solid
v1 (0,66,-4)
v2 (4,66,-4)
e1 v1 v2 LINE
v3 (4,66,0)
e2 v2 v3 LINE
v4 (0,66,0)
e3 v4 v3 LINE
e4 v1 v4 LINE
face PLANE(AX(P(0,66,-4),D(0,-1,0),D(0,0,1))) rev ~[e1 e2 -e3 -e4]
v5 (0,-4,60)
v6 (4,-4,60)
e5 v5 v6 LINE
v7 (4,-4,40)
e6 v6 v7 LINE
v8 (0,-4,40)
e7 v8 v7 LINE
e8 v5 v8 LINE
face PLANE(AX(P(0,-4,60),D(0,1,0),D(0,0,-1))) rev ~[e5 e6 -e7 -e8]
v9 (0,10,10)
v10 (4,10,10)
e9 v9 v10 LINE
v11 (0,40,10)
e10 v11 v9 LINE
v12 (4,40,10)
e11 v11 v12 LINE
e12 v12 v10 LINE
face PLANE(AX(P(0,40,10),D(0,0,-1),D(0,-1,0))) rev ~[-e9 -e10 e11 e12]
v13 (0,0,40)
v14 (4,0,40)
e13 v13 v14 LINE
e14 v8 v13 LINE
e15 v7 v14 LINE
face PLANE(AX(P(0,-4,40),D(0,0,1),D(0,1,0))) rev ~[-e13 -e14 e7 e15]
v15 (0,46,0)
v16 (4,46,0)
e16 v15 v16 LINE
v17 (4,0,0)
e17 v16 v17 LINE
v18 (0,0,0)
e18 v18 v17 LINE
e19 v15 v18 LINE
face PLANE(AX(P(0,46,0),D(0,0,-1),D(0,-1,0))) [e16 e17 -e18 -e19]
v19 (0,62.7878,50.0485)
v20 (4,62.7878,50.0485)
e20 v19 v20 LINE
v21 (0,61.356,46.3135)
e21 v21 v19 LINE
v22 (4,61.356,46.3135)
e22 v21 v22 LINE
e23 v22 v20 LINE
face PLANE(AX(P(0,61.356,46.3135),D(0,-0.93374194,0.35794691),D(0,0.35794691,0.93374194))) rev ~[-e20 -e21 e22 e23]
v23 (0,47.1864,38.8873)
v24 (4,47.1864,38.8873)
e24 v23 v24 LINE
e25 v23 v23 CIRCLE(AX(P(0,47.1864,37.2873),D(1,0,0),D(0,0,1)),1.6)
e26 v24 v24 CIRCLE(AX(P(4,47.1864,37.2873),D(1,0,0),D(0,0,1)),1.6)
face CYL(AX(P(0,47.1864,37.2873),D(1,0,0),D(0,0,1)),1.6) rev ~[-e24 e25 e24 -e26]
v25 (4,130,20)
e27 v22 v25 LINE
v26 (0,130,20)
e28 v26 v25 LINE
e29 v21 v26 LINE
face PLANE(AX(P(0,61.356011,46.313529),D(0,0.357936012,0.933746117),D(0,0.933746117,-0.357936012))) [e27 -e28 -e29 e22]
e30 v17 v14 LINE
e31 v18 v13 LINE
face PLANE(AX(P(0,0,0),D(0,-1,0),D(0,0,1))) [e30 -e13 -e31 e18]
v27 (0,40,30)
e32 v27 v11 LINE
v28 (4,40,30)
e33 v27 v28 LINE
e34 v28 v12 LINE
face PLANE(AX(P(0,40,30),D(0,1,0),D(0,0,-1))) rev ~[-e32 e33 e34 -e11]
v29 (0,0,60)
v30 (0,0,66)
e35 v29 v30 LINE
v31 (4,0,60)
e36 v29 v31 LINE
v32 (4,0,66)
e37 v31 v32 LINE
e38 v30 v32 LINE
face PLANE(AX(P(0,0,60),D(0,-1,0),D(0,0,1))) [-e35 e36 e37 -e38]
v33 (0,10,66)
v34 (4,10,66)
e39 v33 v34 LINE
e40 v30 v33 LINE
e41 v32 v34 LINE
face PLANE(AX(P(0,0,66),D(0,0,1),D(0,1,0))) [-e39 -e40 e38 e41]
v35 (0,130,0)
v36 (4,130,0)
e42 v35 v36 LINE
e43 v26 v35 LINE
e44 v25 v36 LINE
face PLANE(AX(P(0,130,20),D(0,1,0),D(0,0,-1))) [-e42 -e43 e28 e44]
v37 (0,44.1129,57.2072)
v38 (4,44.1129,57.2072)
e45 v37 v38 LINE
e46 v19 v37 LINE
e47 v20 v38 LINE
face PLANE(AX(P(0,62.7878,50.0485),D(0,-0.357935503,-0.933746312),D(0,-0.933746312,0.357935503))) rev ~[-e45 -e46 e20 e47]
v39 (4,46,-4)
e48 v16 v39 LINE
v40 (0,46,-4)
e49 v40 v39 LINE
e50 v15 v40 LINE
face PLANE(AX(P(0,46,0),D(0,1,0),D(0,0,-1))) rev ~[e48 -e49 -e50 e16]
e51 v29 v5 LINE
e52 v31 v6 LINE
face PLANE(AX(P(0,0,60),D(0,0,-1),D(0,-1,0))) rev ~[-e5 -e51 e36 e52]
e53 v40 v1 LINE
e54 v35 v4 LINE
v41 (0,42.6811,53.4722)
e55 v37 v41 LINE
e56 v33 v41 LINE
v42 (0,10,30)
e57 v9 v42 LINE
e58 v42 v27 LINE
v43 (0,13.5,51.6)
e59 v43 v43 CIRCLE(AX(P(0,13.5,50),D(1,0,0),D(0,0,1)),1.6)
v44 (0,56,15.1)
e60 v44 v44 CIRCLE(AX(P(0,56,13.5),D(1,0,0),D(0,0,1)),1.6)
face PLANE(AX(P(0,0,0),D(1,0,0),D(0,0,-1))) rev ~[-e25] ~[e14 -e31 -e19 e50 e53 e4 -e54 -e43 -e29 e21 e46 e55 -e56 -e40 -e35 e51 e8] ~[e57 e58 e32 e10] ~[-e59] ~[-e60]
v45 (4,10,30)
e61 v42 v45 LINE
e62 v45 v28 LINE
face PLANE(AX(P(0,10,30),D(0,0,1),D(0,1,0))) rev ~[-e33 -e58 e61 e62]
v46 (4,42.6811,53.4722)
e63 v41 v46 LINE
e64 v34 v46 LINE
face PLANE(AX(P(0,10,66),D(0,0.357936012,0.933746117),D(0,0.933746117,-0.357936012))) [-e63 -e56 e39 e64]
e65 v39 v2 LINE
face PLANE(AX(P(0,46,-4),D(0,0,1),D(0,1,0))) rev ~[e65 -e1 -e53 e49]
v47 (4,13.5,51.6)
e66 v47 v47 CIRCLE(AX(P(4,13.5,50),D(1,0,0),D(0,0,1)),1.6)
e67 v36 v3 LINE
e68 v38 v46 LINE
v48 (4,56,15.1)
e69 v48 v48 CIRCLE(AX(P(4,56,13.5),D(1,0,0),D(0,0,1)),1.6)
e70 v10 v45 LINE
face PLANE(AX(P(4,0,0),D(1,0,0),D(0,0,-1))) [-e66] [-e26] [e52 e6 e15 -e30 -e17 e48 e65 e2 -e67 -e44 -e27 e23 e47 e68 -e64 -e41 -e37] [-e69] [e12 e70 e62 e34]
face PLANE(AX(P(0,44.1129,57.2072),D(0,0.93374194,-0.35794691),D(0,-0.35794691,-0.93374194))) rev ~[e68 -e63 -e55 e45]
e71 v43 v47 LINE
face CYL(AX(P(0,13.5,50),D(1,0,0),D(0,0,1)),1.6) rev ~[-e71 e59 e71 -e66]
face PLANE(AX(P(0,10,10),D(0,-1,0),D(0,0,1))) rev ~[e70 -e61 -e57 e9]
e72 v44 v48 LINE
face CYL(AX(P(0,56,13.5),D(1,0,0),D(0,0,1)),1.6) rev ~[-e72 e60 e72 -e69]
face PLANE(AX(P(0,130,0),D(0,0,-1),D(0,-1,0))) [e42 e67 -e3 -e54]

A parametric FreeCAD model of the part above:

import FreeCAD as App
import Part
import Sketcher

V = App.Vector


def add_polygon(sketch, points):
    """Adds a closed chain of lines whose ends are joined by coincident constraints."""
    first, n = sketch.GeometryCount, len(points)
    for a, b in zip(points, points[1:] + points[:1]):
        sketch.addGeometry(Part.LineSegment(App.Vector(*a, 0), App.Vector(*b, 0)), False)
    for i in range(n):
        sketch.addConstraint(Sketcher.Constraint("Coincident", first + i, 2, first + (i + 1) % n, 1))

doc = App.newDocument("Part")
params = doc.addObject("Spreadsheet::Sheet", "Params")
for row, (alias, value) in enumerate([
    ("sketch1_width", "46 mm"),
    ("sketch1_width2", "20 mm"),
    ("sketch1_width3", "10 mm"),
    ("sketch1_width4", "4 mm"),
    ("sketch1_width5", "30 mm"),
    ("pad1_length", "4 mm"),
    ("sketch2_diameter", "3.2 mm"),
    ("hole_diameter", "3.2 mm"),
], start=1):
    params.set(f"A{row}", alias)
    params.set(f"B{row}", "=" + value)
    params.setAlias(f"B{row}", alias)

body = doc.addObject("PartDesign::Body", "Body")

# Sketch on YZ plane
sketch1 = body.newObject("Sketcher::SketchObject", "Sketch")
sketch1.AttachmentSupport = (doc.getObject("YZ_Plane"), [""])
sketch1.MapMode = "FlatFace"
add_polygon(sketch1, [(0, 40), (0, 0), (46, 0), (46, -4), (66, -4), (66, 0), (130, 0), (130, 20), (61.4, 46.3), (62.8, 50), (44.1, 57.2), (42.7, 53.5), (10, 66), (0, 66), (0, 60), (-4, 60), (-4, 40)])  # lines 0-16
add_polygon(sketch1, [(40, 10), (10, 10), (10, 30), (40, 30)])  # lines 17-20
sketch1.addConstraint([
    Sketcher.Constraint("Vertical", 0),
    Sketcher.Constraint("Horizontal", 1),
    Sketcher.Constraint("Vertical", 2),
    Sketcher.Constraint("Horizontal", 3),
    Sketcher.Constraint("Vertical", 4),
    Sketcher.Constraint("Horizontal", 5),
    Sketcher.Constraint("Vertical", 6),
    Sketcher.Constraint("Horizontal", 12),
    Sketcher.Constraint("Vertical", 13),
    Sketcher.Constraint("Horizontal", 14),
    Sketcher.Constraint("Vertical", 15),
    Sketcher.Constraint("Horizontal", 16),
    Sketcher.Constraint("Horizontal", 17),
    Sketcher.Constraint("Vertical", 18),
    Sketcher.Constraint("Horizontal", 19),
    Sketcher.Constraint("Vertical", 20),
    Sketcher.Constraint("Coincident", 0, 2, -1, 1),
    Sketcher.Constraint("PointOnObject", 4, 2, -1),
    Sketcher.Constraint("PointOnObject", 12, 2, -2),
    Sketcher.Constraint("Perpendicular", 7, 8),
    Sketcher.Constraint("Perpendicular", 8, 9),
    Sketcher.Constraint("Perpendicular", 9, 10),
    Sketcher.Constraint("Perpendicular", 10, 11),
    Sketcher.Constraint("Vertical", 11, 2, 17, 2),
    Sketcher.Constraint("Equal", 16, 2),
    Sketcher.Constraint("Equal", 3, 6),
    Sketcher.Constraint("Equal", 6, 15),
    Sketcher.Constraint("Equal", 15, 18),
    Sketcher.Constraint("Equal", 8, 10),
    Sketcher.Constraint("DistanceX", 1, 1, 1, 2, 46.0),
    Sketcher.Constraint("DistanceX", 3, 1, 3, 2, 20.0),
    Sketcher.Constraint("DistanceX", 12, 2, 12, 1, 10.0),
    Sketcher.Constraint("DistanceX", 14, 2, 14, 1, 4.0),
    Sketcher.Constraint("DistanceX", 17, 2, 17, 1, 30.0),
    Sketcher.Constraint("DistanceY", 0, 2, 0, 1, 40.0),
    Sketcher.Constraint("Distance", 8, 4.0),
    Sketcher.Constraint("Distance", 9, 20.0),
    Sketcher.Constraint("Distance", 11, 35.0),
    Sketcher.Constraint("DistanceX", -1, 1, 5, 2, 130.0),
    Sketcher.Constraint("DistanceY", -1, 1, 11, 2, 66.0),
    Sketcher.Constraint("DistanceY", -1, 1, 17, 2, 10.0),
])
sketch1.setExpression("Constraints[50]", "Params.sketch1_width")
sketch1.setExpression("Constraints[51]", "Params.sketch1_width2")
sketch1.setExpression("Constraints[52]", "Params.sketch1_width3")
sketch1.setExpression("Constraints[53]", "Params.sketch1_width4")
sketch1.setExpression("Constraints[54]", "Params.sketch1_width5")
pad1 = body.newObject("PartDesign::Pad", "Pad")
pad1.Profile = sketch1
pad1.setExpression("Length", "Params.pad1_length")

# Sketch on YZ plane
sketch2 = body.newObject("Sketcher::SketchObject", "Sketch001")
sketch2.AttachmentSupport = (doc.getObject("YZ_Plane"), [""])
sketch2.MapMode = "FlatFace"
sketch2.addGeometry([
    Part.Circle(V(56, 13.5, 0), V(0, 0, 1), 1.6),
    Part.Circle(V(47.2, 37.3, 0), V(0, 0, 1), 1.6),
    Part.Circle(V(13.5, 50, 0), V(0, 0, 1), 1.6),
], False)
sketch2.addConstraint([
    Sketcher.Constraint("Equal", 0, 1),
    Sketcher.Constraint("Equal", 1, 2),
    Sketcher.Constraint("Diameter", 0, 3.2),
    Sketcher.Constraint("DistanceX", -1, 1, 0, 3, 56.0),
    Sketcher.Constraint("DistanceY", -1, 1, 2, 3, 50.0),
    Sketcher.Constraint("DistanceY", -1, 1, 0, 3, 13.5),
    Sketcher.Constraint("DistanceX", -1, 1, 2, 3, 13.5),
    Sketcher.Constraint("DistanceX", -1, 1, 1, 3, 47.1864),
    Sketcher.Constraint("DistanceY", -1, 1, 1, 3, 37.2873),
])
sketch2.setExpression("Constraints[2]", "Params.sketch2_diameter")
doc.recompute()
hole = body.newObject("PartDesign::Hole", "Hole")
hole.Profile = sketch2
hole.ThreadType = "None"
hole.setExpression("Diameter", "Params.hole_diameter")
hole.DepthType = "ThroughAll"
hole.Reversed = True

doc.recompute()
